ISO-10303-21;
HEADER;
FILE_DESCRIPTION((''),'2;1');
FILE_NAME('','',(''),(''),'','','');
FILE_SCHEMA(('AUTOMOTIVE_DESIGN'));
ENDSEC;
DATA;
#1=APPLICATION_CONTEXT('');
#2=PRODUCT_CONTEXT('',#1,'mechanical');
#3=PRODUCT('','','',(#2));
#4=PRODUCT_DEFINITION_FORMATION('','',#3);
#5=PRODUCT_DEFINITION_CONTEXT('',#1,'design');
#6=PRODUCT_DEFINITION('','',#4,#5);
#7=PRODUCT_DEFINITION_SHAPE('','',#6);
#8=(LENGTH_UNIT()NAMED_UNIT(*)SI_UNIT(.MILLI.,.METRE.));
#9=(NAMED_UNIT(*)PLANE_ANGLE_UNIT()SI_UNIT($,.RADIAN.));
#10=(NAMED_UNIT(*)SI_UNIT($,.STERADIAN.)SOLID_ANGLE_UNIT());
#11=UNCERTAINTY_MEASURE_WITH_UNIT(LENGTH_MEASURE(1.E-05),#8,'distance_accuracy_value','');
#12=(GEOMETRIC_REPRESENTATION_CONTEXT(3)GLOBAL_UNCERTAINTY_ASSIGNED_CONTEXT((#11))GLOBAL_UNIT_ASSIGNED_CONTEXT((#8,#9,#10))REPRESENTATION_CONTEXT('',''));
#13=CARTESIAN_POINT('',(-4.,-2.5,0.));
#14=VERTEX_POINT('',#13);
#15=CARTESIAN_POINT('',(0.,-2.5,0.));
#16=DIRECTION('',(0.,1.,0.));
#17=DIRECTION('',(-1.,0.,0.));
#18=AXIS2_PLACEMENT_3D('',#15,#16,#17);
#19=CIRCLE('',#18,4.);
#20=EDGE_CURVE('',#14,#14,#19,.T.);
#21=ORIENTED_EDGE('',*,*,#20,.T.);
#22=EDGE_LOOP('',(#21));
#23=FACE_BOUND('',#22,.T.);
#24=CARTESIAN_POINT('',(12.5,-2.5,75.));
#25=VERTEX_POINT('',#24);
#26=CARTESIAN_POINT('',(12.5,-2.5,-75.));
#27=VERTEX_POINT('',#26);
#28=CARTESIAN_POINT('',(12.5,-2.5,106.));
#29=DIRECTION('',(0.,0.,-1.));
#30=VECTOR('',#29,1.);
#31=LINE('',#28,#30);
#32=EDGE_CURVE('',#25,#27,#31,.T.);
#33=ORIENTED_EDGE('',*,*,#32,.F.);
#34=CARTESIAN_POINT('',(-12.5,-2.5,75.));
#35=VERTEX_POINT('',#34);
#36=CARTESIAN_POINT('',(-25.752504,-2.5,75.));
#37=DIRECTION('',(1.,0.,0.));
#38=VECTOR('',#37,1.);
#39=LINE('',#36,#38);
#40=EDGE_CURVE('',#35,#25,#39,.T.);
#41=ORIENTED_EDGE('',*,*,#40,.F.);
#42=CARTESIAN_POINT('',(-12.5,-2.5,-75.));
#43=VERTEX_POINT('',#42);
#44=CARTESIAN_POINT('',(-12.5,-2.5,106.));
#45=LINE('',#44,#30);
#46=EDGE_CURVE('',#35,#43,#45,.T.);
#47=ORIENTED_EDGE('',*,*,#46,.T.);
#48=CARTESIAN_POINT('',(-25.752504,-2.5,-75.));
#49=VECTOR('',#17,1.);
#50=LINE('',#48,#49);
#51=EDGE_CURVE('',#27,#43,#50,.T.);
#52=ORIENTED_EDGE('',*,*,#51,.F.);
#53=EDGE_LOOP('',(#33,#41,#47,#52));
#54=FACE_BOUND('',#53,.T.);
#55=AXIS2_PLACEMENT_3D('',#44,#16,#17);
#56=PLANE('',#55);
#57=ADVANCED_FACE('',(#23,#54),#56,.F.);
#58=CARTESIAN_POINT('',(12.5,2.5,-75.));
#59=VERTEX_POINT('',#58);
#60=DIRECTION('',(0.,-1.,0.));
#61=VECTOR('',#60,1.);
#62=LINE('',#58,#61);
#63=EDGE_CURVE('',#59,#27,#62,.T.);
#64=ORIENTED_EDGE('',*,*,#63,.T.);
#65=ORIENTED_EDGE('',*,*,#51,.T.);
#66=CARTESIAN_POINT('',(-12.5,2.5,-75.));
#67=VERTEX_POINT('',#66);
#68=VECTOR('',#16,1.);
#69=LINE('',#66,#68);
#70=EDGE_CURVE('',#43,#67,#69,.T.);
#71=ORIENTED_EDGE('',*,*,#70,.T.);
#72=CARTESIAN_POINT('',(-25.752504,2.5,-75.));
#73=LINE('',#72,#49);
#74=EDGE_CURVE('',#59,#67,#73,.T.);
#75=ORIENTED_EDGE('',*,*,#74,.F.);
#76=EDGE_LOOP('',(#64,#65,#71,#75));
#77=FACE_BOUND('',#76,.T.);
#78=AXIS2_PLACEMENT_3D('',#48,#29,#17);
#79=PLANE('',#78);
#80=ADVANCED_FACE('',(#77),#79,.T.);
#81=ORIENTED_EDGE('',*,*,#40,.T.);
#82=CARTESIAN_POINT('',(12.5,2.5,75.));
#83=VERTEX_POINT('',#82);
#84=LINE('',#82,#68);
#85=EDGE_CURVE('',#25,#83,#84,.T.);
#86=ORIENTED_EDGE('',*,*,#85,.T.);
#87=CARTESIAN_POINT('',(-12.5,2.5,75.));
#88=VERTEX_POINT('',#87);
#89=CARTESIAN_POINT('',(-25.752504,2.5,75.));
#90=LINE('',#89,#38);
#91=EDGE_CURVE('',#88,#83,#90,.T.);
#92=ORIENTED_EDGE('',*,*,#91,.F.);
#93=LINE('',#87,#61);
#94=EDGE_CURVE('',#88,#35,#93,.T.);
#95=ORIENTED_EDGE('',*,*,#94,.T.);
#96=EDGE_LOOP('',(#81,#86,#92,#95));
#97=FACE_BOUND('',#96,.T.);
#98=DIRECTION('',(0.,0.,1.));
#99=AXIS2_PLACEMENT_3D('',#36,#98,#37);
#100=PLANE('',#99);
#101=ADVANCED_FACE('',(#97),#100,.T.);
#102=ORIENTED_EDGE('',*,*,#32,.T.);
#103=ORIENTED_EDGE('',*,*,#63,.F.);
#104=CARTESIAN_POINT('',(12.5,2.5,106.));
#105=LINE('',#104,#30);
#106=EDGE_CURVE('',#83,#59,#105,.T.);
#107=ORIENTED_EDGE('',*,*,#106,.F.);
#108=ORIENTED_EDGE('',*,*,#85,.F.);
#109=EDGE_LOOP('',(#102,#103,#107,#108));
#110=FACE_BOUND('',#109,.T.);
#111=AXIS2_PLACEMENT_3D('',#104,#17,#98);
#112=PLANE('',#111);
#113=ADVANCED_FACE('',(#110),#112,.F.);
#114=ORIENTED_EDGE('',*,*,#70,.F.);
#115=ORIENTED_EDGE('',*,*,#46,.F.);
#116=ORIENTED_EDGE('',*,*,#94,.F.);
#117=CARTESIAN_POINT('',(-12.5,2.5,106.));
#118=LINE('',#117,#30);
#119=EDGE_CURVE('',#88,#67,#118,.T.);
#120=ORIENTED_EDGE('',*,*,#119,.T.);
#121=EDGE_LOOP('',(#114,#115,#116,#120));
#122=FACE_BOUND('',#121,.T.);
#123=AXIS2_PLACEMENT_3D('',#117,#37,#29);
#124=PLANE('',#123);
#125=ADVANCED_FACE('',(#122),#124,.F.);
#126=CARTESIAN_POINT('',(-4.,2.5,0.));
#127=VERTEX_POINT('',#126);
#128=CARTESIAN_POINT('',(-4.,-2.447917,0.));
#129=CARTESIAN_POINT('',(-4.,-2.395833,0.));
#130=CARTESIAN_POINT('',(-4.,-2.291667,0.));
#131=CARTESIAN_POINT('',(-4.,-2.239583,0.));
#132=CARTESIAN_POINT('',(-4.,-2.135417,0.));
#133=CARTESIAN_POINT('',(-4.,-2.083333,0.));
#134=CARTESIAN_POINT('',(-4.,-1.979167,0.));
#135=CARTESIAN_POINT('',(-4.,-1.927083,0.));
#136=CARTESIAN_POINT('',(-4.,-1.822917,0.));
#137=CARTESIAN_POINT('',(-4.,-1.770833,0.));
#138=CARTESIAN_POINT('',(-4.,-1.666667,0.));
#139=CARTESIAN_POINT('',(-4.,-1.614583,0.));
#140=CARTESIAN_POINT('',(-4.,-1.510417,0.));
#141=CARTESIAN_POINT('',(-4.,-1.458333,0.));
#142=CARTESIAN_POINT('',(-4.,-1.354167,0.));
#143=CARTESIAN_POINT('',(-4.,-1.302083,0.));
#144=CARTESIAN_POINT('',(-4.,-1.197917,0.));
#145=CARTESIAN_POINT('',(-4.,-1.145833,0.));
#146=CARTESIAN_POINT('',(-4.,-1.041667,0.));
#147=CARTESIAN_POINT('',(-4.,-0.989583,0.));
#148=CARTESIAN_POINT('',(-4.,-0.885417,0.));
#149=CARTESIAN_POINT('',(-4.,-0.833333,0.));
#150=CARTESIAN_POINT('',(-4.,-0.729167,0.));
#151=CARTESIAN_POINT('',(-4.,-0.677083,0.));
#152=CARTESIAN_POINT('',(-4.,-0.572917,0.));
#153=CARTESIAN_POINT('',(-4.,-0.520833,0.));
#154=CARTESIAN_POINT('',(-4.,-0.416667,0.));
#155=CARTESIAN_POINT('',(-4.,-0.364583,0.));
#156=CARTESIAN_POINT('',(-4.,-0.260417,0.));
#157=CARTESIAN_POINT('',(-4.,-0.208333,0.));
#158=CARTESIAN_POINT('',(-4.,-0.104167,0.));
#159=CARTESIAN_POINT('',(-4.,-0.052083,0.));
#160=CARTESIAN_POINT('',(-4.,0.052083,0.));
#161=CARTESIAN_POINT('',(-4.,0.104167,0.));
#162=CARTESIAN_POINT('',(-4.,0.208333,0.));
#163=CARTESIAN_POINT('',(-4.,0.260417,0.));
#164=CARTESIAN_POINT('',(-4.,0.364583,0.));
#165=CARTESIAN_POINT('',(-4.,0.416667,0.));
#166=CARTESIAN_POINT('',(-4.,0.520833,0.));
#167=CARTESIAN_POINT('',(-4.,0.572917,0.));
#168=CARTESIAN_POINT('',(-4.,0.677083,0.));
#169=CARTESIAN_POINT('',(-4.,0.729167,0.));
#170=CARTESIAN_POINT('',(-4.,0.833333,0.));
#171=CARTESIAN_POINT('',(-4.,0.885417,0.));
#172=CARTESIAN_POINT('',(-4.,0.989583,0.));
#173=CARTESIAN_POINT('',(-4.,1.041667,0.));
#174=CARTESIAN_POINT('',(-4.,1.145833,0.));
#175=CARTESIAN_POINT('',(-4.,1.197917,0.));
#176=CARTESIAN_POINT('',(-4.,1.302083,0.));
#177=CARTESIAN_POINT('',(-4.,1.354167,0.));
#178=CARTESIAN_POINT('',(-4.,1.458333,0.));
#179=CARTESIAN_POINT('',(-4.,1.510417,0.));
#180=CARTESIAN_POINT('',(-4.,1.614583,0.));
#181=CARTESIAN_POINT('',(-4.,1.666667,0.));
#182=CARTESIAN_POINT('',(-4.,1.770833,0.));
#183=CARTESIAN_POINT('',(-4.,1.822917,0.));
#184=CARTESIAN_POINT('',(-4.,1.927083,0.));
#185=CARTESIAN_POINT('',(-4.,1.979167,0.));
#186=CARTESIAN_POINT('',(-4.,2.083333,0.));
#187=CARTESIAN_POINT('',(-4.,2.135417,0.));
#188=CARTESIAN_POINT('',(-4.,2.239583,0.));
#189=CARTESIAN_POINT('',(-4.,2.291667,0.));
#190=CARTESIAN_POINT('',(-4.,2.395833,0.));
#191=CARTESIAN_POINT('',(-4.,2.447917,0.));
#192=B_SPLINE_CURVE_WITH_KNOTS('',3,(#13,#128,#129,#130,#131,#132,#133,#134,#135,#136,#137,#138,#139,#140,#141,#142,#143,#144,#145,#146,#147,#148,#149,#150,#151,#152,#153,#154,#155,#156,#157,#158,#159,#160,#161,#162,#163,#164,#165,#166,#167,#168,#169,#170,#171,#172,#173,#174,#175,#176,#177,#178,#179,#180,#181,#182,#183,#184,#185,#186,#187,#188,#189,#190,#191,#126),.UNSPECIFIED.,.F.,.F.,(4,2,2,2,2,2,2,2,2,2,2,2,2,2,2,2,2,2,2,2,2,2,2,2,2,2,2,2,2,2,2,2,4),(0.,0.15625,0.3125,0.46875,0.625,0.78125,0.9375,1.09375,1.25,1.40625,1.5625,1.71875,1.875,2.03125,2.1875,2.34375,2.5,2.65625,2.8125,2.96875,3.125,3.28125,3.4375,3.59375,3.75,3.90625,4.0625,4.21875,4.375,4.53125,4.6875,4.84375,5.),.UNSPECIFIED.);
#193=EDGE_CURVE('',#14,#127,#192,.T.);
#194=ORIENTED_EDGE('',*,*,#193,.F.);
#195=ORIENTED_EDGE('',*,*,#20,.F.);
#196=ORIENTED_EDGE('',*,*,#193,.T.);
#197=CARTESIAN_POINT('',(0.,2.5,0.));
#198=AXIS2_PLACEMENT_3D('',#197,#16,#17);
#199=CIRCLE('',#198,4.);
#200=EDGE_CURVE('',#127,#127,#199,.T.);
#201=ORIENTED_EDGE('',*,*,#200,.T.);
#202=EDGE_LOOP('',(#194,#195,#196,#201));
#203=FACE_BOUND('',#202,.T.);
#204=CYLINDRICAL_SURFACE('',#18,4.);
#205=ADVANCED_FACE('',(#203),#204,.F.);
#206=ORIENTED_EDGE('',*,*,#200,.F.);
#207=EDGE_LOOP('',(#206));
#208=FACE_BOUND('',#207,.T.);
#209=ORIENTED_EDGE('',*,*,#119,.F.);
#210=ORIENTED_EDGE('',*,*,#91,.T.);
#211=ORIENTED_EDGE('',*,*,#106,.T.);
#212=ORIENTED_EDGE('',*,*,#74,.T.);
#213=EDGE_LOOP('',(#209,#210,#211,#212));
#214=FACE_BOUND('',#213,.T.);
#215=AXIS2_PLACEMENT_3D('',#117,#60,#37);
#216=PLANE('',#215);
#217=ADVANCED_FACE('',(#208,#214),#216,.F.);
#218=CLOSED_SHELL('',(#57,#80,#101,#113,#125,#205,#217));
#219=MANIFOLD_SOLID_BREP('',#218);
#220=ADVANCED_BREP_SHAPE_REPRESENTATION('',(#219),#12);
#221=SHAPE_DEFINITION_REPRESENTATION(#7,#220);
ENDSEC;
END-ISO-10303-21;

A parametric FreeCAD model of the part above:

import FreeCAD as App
import Part
import Sketcher

V = App.Vector

doc = App.newDocument("Part")
body = doc.addObject("PartDesign::Body", "Body")

sketch1 = body.newObject("Sketcher::SketchObject", "Sketch")
sketch1.AttachmentSupport = (doc.getObject("XY_Plane"), [""])
sketch1.MapMode = "FlatFace"
sketch1.addGeometry([
    Part.LineSegment(V(-12, 2, 0), V(-12, -2, 0)),
    Part.LineSegment(V(-12, -2, 0), V(12, -2, 0)),
    Part.LineSegment(V(12, -2, 0), V(12, 2, 0)),
    Part.LineSegment(V(12, 2, 0), V(-12, 2, 0)),
], False)
sketch1.addConstraint([
    Sketcher.Constraint("Coincident", 0, 2, 1, 1),
    Sketcher.Constraint("Coincident", 1, 2, 2, 1),
    Sketcher.Constraint("Coincident", 2, 2, 3, 1),
    Sketcher.Constraint("Coincident", 3, 2, 0, 1),
    Sketcher.Constraint("Vertical", 0),
    Sketcher.Constraint("Horizontal", 1),
    Sketcher.Constraint("Vertical", 2),
    Sketcher.Constraint("Horizontal", 3),
    Sketcher.Constraint("Symmetric", 0, 2, 2, 2, -1, 1),
    Sketcher.Constraint("DistanceX", 1, 1, 1, 2, 25.0),
    Sketcher.Constraint("DistanceY", 0, 2, 0, 1, 5.0),
])
pad1 = body.newObject("PartDesign::Pad", "Pad")
pad1.Profile = sketch1
pad1.Length = 212
pad1.Midplane = True

sketch2 = body.newObject("Sketcher::SketchObject", "Sketch001")
sketch2.AttachmentSupport = (doc.getObject("XZ_Plane"), [""])
sketch2.MapMode = "FlatFace"
sketch2.AttachmentOffset = App.Placement(V(0, 0, -2.5), App.Rotation())
sketch2.addGeometry([
    Part.Circle(V(0, -87.5, 0), V(0, 0, 1), 4),
    Part.Circle(V(0, 0, 0), V(0, 0, 1), 4),
    Part.Circle(V(0, 87.5, 0), V(0, 0, 1), 4),
], False)
sketch2.addConstraint([
    Sketcher.Constraint("Coincident", 1, 3, -1, 1),
    Sketcher.Constraint("Equal", 0, 1),
    Sketcher.Constraint("Equal", 1, 2),
    Sketcher.Constraint("Symmetric", 0, 3, 2, 3, -1, 1),
    Sketcher.Constraint("PointOnObject", 0, 3, -2),
    Sketcher.Constraint("Diameter", 0, 8.0),
    Sketcher.Constraint("DistanceY", 0, 3, 2, 3, 175.0),
])
pocket1 = body.newObject("PartDesign::Pocket", "Pocket")
pocket1.Profile = sketch2
pocket1.Type = "ThroughAll"
pocket1.Reversed = True

sketch3 = body.newObject("Sketcher::SketchObject", "Sketch002")
sketch3.AttachmentSupport = (doc.getObject("XZ_Plane"), [""])
sketch3.MapMode = "FlatFace"
sketch3.AttachmentOffset = App.Placement(V(0, 0, -2.5), App.Rotation())
sketch3.addGeometry([
    Part.LineSegment(V(-35, -128, 0), V(-35, 128, 0)),
    Part.LineSegment(V(-35, 128, 0), V(35, 128, 0)),
    Part.LineSegment(V(35, 128, 0), V(35, -128, 0)),
    Part.LineSegment(V(35, -128, 0), V(-35, -128, 0)),
    Part.LineSegment(V(26, 75, 0), V(-26, 75, 0)),
    Part.LineSegment(V(-26, 75, 0), V(-26, -75, 0)),
    Part.LineSegment(V(-26, -75, 0), V(26, -75, 0)),
    Part.LineSegment(V(26, -75, 0), V(26, 75, 0)),
], False)
sketch3.addConstraint([
    Sketcher.Constraint("Coincident", 0, 2, 1, 1),
    Sketcher.Constraint("Coincident", 1, 2, 2, 1),
    Sketcher.Constraint("Coincident", 2, 2, 3, 1),
    Sketcher.Constraint("Coincident", 3, 2, 0, 1),
    Sketcher.Constraint("Coincident", 4, 2, 5, 1),
    Sketcher.Constraint("Coincident", 5, 2, 6, 1),
    Sketcher.Constraint("Coincident", 6, 2, 7, 1),
    Sketcher.Constraint("Coincident", 7, 2, 4, 1),
    Sketcher.Constraint("Vertical", 0),
    Sketcher.Constraint("Horizontal", 1),
    Sketcher.Constraint("Vertical", 2),
    Sketcher.Constraint("Horizontal", 3),
    Sketcher.Constraint("Horizontal", 4),
    Sketcher.Constraint("Vertical", 5),
    Sketcher.Constraint("Horizontal", 6),
    Sketcher.Constraint("Vertical", 7),
    Sketcher.Constraint("Symmetric", 0, 2, 2, 2, -1, 1),
    Sketcher.Constraint("Symmetric", 4, 2, 6, 2, -1, 1),
    Sketcher.Constraint("DistanceY", 5, 2, 5, 1, 150.0),
    Sketcher.Constraint("DistanceX", 1, 1, 1, 2, 69.706),
    Sketcher.Constraint("DistanceY", 0, 1, 0, 2, 256.706),
    Sketcher.Constraint("DistanceX", 4, 2, 4, 1, 51.505008),
])
pocket2 = body.newObject("PartDesign::Pocket", "Pocket001")
pocket2.Profile = sketch3
pocket2.Type = "ThroughAll"
pocket2.Reversed = True

doc.recompute()
